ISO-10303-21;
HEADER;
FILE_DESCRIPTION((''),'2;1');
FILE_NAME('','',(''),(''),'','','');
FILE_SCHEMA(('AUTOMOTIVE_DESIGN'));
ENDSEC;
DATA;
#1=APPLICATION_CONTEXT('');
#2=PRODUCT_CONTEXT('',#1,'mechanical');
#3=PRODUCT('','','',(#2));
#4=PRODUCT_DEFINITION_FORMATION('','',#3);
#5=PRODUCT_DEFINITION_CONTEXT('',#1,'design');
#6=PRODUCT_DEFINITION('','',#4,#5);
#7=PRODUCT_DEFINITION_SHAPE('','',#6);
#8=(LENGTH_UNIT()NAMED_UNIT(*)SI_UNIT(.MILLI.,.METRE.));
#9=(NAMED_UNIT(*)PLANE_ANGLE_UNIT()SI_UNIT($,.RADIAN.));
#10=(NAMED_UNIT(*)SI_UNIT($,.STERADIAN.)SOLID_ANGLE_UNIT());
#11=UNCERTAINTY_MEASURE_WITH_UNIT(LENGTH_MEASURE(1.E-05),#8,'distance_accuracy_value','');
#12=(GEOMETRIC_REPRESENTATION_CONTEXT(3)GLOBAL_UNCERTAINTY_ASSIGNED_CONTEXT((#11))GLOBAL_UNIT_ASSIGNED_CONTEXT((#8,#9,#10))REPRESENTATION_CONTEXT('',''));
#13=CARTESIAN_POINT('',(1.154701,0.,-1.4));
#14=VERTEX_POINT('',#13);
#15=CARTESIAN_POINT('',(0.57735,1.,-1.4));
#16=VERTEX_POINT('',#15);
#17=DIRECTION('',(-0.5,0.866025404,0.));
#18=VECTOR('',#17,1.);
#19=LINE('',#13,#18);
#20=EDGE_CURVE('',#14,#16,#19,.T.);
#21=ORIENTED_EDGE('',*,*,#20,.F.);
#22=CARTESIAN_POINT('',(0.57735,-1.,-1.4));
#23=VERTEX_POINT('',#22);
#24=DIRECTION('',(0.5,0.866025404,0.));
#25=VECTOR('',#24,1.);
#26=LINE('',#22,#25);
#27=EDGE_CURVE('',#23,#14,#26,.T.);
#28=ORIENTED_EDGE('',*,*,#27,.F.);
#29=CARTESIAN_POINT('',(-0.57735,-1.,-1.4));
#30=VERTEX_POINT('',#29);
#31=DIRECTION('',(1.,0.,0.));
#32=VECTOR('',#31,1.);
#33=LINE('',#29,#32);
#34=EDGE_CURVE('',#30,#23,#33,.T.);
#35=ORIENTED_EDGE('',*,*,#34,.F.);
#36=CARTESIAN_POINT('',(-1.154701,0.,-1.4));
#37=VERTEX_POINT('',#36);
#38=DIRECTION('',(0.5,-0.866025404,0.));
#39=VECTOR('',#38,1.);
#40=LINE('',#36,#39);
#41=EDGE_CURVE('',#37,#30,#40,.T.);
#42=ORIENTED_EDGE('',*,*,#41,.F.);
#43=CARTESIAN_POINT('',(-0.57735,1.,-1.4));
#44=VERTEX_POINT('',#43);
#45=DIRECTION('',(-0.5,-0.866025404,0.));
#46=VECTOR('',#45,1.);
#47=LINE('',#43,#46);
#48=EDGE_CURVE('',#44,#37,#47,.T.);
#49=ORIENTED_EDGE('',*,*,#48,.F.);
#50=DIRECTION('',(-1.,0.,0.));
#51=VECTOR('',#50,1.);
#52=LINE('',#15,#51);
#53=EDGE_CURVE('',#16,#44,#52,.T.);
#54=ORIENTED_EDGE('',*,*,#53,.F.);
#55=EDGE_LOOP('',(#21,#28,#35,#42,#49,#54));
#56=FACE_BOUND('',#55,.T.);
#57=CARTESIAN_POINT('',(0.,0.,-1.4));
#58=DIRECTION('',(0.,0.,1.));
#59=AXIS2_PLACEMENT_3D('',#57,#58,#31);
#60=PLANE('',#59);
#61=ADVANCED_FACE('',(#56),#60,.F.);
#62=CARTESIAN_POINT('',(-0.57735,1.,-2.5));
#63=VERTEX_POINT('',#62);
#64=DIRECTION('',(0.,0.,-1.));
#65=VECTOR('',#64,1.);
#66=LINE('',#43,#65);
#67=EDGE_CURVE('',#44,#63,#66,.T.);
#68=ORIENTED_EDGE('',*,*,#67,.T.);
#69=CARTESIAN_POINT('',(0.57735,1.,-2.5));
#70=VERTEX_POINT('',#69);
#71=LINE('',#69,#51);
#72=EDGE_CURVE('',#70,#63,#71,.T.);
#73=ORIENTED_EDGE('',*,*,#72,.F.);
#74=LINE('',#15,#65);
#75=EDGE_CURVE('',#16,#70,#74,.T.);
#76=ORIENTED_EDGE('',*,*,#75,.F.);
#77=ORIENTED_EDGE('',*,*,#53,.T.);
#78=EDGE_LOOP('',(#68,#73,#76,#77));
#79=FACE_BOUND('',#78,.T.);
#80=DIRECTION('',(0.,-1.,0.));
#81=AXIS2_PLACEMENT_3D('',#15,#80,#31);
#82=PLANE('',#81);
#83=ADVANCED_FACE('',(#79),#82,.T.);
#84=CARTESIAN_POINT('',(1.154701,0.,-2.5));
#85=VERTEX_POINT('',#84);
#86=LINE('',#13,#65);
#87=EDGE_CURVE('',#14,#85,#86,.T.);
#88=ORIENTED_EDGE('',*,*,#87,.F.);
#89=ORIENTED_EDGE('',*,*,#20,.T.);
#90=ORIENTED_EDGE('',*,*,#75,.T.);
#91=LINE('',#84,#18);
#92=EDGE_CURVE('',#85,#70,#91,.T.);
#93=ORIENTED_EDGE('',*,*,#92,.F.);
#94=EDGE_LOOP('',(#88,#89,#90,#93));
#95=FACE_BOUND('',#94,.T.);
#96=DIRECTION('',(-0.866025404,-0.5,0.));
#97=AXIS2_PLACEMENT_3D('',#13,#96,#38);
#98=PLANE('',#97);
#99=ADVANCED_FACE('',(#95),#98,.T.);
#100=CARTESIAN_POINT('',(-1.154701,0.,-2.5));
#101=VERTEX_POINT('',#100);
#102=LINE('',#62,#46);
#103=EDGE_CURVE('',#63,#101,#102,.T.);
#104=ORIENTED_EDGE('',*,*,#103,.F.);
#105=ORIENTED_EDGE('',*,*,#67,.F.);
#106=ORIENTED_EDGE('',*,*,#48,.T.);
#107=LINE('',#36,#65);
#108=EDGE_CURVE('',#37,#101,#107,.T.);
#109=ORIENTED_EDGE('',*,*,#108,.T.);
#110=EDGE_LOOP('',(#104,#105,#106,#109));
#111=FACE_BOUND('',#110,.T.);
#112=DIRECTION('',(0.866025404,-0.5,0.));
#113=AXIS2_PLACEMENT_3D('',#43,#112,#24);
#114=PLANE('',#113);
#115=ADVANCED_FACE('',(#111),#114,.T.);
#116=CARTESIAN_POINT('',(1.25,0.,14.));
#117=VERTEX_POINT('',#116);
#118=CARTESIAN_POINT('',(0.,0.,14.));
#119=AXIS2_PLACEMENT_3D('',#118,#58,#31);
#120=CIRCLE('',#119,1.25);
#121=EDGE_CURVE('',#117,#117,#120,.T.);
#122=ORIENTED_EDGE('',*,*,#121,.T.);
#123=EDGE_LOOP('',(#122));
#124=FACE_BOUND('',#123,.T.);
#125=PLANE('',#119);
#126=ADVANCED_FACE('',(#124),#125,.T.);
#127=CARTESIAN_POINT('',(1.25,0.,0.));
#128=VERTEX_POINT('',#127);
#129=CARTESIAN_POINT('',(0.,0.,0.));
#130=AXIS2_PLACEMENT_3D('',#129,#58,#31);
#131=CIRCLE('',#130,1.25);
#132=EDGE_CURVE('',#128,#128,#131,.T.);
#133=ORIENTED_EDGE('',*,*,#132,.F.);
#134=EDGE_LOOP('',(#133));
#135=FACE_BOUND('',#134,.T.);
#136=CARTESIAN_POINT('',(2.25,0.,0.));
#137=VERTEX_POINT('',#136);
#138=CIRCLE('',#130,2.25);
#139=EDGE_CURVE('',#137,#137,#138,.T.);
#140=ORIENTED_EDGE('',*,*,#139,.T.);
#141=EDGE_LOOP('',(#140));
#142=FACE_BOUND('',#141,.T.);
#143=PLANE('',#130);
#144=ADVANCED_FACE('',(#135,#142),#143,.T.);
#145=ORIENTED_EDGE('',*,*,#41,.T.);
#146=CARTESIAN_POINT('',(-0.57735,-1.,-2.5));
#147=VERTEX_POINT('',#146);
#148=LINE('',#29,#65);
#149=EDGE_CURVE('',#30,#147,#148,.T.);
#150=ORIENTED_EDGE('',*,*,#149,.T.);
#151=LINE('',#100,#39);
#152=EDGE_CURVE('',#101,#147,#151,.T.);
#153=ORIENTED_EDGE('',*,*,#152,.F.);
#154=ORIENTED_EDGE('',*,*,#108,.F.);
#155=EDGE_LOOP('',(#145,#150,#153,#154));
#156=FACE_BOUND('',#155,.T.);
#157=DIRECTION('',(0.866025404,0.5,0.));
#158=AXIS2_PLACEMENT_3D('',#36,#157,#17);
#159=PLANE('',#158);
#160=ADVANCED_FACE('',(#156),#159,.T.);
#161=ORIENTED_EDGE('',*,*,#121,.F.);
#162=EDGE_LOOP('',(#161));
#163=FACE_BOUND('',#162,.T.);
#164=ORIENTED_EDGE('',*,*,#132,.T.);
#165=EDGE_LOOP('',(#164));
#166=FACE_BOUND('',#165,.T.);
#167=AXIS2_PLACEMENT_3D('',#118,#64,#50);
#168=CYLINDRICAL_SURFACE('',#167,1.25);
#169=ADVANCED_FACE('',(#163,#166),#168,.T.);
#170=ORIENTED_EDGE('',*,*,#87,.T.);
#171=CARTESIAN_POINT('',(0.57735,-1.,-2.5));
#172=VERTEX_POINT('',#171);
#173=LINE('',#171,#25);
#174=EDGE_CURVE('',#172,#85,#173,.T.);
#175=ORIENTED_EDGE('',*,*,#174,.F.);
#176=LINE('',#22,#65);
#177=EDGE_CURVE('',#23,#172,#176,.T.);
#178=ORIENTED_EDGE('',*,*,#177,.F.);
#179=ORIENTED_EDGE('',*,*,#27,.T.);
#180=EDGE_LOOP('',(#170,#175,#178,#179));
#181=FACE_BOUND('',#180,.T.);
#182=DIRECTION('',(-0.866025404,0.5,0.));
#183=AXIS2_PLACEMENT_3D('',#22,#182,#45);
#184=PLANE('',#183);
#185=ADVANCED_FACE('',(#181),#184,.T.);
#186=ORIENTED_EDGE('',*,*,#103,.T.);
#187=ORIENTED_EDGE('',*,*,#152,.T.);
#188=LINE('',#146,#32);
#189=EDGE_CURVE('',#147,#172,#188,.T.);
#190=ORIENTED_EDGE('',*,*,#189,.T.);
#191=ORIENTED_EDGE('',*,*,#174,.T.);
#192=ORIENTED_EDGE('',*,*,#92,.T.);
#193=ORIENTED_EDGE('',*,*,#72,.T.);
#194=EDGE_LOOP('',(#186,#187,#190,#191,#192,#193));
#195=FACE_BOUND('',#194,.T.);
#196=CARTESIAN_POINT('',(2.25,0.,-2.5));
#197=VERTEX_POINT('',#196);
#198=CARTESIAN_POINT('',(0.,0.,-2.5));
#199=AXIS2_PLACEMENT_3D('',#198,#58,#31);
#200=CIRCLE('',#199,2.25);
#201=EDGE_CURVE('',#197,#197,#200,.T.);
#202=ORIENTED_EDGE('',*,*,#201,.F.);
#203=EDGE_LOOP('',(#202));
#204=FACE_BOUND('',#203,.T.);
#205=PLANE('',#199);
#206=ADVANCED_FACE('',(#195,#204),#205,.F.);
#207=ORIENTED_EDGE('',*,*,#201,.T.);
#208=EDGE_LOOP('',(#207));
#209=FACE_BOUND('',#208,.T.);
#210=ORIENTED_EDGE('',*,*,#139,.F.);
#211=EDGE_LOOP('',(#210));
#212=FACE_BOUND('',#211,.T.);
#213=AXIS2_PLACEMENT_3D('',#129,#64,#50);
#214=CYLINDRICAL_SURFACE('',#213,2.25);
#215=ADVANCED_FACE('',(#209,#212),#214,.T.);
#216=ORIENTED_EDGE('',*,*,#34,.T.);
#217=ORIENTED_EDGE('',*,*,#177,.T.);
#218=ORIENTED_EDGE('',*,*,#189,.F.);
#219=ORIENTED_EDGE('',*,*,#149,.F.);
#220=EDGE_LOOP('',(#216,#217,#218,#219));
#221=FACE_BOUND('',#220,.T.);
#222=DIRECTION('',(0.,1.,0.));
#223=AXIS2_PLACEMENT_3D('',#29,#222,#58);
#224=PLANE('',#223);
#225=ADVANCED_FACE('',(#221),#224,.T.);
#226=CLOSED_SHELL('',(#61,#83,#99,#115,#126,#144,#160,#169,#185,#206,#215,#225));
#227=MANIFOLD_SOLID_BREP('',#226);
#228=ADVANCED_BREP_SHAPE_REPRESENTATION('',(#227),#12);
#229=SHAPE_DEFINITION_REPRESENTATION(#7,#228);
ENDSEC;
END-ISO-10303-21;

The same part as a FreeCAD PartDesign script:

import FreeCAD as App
import Part
import Sketcher
Q = App.Units.Quantity

doc = App.newDocument("Part")
body = doc.addObject("PartDesign::Body", "Body")

# Sketch on XY plane
sketch1 = body.newObject("Sketcher::SketchObject", "Sketch")
sketch1.AttachmentSupport = (doc.getObject("XY_Plane"), [""])
sketch1.MapMode = "FlatFace"
sketch1.AttachmentOffset = App.Placement(App.Vector(0, 0, -2.5), App.Rotation())
sketch1.addGeometry(Part.Circle(App.Vector(0, 0, 0), App.Vector(0, 0, 1), 2.2), False)
sketch1.addConstraint(Sketcher.Constraint("Coincident", 0, 3, -1, 1))
sketch1.addConstraint(Sketcher.Constraint("Diameter", 0, Q("4.5 mm")))
pad1 = body.newObject("PartDesign::Pad", "Pad")
pad1.Profile = sketch1
pad1.Length = 2.5

# Sketch on XY plane
sketch2 = body.newObject("Sketcher::SketchObject", "Sketch001")
sketch2.AttachmentSupport = (doc.getObject("XY_Plane"), [""])
sketch2.MapMode = "FlatFace"
sketch2.addGeometry(Part.Circle(App.Vector(0, 0, 0), App.Vector(0, 0, 1), 1.2), False)
sketch2.addConstraint(Sketcher.Constraint("Coincident", 0, 3, -1, 1))
sketch2.addConstraint(Sketcher.Constraint("Diameter", 0, Q("2.5 mm")))
pad2 = body.newObject("PartDesign::Pad", "Pad001")
pad2.Profile = sketch2
pad2.Length = 14

# Sketch on XY plane
sketch3 = body.newObject("Sketcher::SketchObject", "Sketch002")
sketch3.AttachmentSupport = (doc.getObject("XY_Plane"), [""])
sketch3.MapMode = "FlatFace"
sketch3.AttachmentOffset = App.Placement(App.Vector(0, 0, -2.5), App.Rotation())
sketch3.addGeometry(Part.LineSegment(App.Vector(1.2, 0, 0), App.Vector(0.6, 1, 0)), False)
sketch3.addGeometry(Part.LineSegment(App.Vector(0.6, 1, 0), App.Vector(-0.6, 1, 0)), False)
sketch3.addGeometry(Part.LineSegment(App.Vector(-0.6, 1, 0), App.Vector(-1.2, 0, 0)), False)
sketch3.addGeometry(Part.LineSegment(App.Vector(-1.2, 0, 0), App.Vector(-0.6, -1, 0)), False)
sketch3.addGeometry(Part.LineSegment(App.Vector(-0.6, -1, 0), App.Vector(0.6, -1, 0)), False)
sketch3.addGeometry(Part.LineSegment(App.Vector(0.6, -1, 0), App.Vector(1.2, 0, 0)), False)
sketch3.addConstraint(Sketcher.Constraint("Coincident", 0, 2, 1, 1))
sketch3.addConstraint(Sketcher.Constraint("Coincident", 1, 2, 2, 1))
sketch3.addConstraint(Sketcher.Constraint("Coincident", 2, 2, 3, 1))
sketch3.addConstraint(Sketcher.Constraint("Coincident", 3, 2, 4, 1))
sketch3.addConstraint(Sketcher.Constraint("Coincident", 4, 2, 5, 1))
sketch3.addConstraint(Sketcher.Constraint("Coincident", 5, 2, 0, 1))
sketch3.addConstraint(Sketcher.Constraint("Horizontal", 1))
sketch3.addConstraint(Sketcher.Constraint("Horizontal", 4))
sketch3.addConstraint(Sketcher.Constraint("Symmetric", 0, 2, 3, 2, -1, 1))
sketch3.addConstraint(Sketcher.Constraint("Symmetric", 2, 2, 5, 2, -1, 1))
sketch3.addConstraint(Sketcher.Constraint("PointOnObject", 2, 2, -1))
sketch3.addConstraint(Sketcher.Constraint("Parallel", 2, 5))
sketch3.addConstraint(Sketcher.Constraint("Vertical", 1, 2, 3, 2))
sketch3.addConstraint(Sketcher.Constraint("Angle", 0, Q("120 deg")))
sketch3.addConstraint(Sketcher.Constraint("DistanceY", -1, 1, 0, 2, Q("1 mm")))
sketch3.addConstraint(Sketcher.Constraint("DistanceX", 1, 2, 1, 1, Q("1.154701 mm")))
pocket1 = body.newObject("PartDesign::Pocket", "Pocket")
pocket1.Profile = sketch3
pocket1.Length = 1.1
pocket1.Reversed = True

doc.recompute()
